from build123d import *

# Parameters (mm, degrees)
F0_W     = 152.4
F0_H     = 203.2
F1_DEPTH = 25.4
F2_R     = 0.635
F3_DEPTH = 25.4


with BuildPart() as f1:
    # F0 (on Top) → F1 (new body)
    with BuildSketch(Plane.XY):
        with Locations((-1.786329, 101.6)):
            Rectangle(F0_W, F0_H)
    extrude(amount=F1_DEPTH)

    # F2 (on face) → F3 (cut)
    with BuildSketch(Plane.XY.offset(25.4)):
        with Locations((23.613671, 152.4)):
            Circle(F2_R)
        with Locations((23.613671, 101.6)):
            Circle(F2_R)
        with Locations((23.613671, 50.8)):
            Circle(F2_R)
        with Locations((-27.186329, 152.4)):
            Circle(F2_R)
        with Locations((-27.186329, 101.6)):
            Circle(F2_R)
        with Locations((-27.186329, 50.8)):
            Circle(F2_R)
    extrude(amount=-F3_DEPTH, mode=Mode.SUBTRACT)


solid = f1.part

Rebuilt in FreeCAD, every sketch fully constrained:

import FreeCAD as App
import Part
import Sketcher

V = App.Vector
Q = App.Units.Quantity


def add_polygon(sketch, points):
    """Adds a closed chain of lines whose ends are joined by coincident constraints."""
    first, n = sketch.GeometryCount, len(points)
    for a, b in zip(points, points[1:] + points[:1]):
        sketch.addGeometry(Part.LineSegment(App.Vector(*a, 0), App.Vector(*b, 0)), False)
    for i in range(n):
        sketch.addConstraint(Sketcher.Constraint("Coincident", first + i, 2, first + (i + 1) % n, 1))

doc = App.newDocument("Part")
body = doc.addObject("PartDesign::Body", "Body")

# Sketch on XY plane
sketch1 = body.newObject("Sketcher::SketchObject", "Sketch")
sketch1.AttachmentSupport = (doc.getObject("XY_Plane"), [""])
sketch1.MapMode = "FlatFace"
add_polygon(sketch1, [(-78, 203), (-78, 0), (74, 0), (74, 203)])  # lines 0-3
sketch1.addConstraint([
    Sketcher.Constraint("Vertical", 0),
    Sketcher.Constraint("Horizontal", 1),
    Sketcher.Constraint("Vertical", 2),
    Sketcher.Constraint("Horizontal", 3),
    Sketcher.Constraint("PointOnObject", 0, 2, -1),
    Sketcher.Constraint("DistanceX", 1, 1, 1, 2, Q("6 in")),
    Sketcher.Constraint("DistanceY", 0, 2, 0, 1, Q("8 in")),
    Sketcher.Constraint("DistanceX", 0, 2, -1, 1, 77.986329),
])
pad1 = body.newObject("PartDesign::Pad", "Pad")
pad1.Profile = sketch1
pad1.Length = Q("1 in")

# Sketch on XY plane
sketch2 = body.newObject("Sketcher::SketchObject", "Sketch001")
sketch2.AttachmentSupport = (doc.getObject("XY_Plane"), [""])
sketch2.MapMode = "FlatFace"
sketch2.AttachmentOffset = App.Placement(V(0, 0, 1 * 25.4), App.Rotation())
sketch2.addGeometry([
    Part.Circle(V(23.6, 152.4, 0), V(0, 0, 1), 0.6),  # 0
    Part.Circle(V(23.6, 101.6, 0), V(0, 0, 1), 0.6),  # 1
    Part.Circle(V(23.6, 50.8, 0), V(0, 0, 1), 0.6),  # 2
    Part.Circle(V(-27.2, 152.4, 0), V(0, 0, 1), 0.6),  # 3
    Part.Circle(V(-27.2, 101.6, 0), V(0, 0, 1), 0.6),  # 4
    Part.Circle(V(-27.2, 50.8, 0), V(0, 0, 1), 0.6),  # 5
], False)
sketch2.addConstraint([
    Sketcher.Constraint("Equal", 0, 1),
    Sketcher.Constraint("Equal", 1, 2),
    Sketcher.Constraint("Equal", 2, 3),
    Sketcher.Constraint("Equal", 3, 4),
    Sketcher.Constraint("Equal", 4, 5),
    Sketcher.Constraint("Horizontal", 0, 3, 3, 3),
    Sketcher.Constraint("Horizontal", 1, 3, 4, 3),
    Sketcher.Constraint("Horizontal", 2, 3, 5, 3),
    Sketcher.Constraint("Vertical", 0, 3, 1, 3),
    Sketcher.Constraint("Vertical", 1, 3, 2, 3),
    Sketcher.Constraint("Vertical", 3, 3, 4, 3),
    Sketcher.Constraint("Vertical", 4, 3, 5, 3),
    Sketcher.Constraint("Diameter", 0, Q("0.05 in")),
    Sketcher.Constraint("DistanceY", -1, 1, 0, 3, Q("6 in")),
    Sketcher.Constraint("DistanceY", -1, 1, 1, 3, Q("4 in")),
    Sketcher.Constraint("DistanceY", -1, 1, 2, 3, Q("2 in")),
    Sketcher.Constraint("DistanceX", 3, 3, 0, 3, Q("2 in")),
    Sketcher.Constraint("DistanceX", -1, 1, 0, 3, 23.613671),
])
pocket1 = body.newObject("PartDesign::Pocket", "Pocket")
pocket1.Profile = sketch2
pocket1.Length = Q("1 in")

doc.recompute()
